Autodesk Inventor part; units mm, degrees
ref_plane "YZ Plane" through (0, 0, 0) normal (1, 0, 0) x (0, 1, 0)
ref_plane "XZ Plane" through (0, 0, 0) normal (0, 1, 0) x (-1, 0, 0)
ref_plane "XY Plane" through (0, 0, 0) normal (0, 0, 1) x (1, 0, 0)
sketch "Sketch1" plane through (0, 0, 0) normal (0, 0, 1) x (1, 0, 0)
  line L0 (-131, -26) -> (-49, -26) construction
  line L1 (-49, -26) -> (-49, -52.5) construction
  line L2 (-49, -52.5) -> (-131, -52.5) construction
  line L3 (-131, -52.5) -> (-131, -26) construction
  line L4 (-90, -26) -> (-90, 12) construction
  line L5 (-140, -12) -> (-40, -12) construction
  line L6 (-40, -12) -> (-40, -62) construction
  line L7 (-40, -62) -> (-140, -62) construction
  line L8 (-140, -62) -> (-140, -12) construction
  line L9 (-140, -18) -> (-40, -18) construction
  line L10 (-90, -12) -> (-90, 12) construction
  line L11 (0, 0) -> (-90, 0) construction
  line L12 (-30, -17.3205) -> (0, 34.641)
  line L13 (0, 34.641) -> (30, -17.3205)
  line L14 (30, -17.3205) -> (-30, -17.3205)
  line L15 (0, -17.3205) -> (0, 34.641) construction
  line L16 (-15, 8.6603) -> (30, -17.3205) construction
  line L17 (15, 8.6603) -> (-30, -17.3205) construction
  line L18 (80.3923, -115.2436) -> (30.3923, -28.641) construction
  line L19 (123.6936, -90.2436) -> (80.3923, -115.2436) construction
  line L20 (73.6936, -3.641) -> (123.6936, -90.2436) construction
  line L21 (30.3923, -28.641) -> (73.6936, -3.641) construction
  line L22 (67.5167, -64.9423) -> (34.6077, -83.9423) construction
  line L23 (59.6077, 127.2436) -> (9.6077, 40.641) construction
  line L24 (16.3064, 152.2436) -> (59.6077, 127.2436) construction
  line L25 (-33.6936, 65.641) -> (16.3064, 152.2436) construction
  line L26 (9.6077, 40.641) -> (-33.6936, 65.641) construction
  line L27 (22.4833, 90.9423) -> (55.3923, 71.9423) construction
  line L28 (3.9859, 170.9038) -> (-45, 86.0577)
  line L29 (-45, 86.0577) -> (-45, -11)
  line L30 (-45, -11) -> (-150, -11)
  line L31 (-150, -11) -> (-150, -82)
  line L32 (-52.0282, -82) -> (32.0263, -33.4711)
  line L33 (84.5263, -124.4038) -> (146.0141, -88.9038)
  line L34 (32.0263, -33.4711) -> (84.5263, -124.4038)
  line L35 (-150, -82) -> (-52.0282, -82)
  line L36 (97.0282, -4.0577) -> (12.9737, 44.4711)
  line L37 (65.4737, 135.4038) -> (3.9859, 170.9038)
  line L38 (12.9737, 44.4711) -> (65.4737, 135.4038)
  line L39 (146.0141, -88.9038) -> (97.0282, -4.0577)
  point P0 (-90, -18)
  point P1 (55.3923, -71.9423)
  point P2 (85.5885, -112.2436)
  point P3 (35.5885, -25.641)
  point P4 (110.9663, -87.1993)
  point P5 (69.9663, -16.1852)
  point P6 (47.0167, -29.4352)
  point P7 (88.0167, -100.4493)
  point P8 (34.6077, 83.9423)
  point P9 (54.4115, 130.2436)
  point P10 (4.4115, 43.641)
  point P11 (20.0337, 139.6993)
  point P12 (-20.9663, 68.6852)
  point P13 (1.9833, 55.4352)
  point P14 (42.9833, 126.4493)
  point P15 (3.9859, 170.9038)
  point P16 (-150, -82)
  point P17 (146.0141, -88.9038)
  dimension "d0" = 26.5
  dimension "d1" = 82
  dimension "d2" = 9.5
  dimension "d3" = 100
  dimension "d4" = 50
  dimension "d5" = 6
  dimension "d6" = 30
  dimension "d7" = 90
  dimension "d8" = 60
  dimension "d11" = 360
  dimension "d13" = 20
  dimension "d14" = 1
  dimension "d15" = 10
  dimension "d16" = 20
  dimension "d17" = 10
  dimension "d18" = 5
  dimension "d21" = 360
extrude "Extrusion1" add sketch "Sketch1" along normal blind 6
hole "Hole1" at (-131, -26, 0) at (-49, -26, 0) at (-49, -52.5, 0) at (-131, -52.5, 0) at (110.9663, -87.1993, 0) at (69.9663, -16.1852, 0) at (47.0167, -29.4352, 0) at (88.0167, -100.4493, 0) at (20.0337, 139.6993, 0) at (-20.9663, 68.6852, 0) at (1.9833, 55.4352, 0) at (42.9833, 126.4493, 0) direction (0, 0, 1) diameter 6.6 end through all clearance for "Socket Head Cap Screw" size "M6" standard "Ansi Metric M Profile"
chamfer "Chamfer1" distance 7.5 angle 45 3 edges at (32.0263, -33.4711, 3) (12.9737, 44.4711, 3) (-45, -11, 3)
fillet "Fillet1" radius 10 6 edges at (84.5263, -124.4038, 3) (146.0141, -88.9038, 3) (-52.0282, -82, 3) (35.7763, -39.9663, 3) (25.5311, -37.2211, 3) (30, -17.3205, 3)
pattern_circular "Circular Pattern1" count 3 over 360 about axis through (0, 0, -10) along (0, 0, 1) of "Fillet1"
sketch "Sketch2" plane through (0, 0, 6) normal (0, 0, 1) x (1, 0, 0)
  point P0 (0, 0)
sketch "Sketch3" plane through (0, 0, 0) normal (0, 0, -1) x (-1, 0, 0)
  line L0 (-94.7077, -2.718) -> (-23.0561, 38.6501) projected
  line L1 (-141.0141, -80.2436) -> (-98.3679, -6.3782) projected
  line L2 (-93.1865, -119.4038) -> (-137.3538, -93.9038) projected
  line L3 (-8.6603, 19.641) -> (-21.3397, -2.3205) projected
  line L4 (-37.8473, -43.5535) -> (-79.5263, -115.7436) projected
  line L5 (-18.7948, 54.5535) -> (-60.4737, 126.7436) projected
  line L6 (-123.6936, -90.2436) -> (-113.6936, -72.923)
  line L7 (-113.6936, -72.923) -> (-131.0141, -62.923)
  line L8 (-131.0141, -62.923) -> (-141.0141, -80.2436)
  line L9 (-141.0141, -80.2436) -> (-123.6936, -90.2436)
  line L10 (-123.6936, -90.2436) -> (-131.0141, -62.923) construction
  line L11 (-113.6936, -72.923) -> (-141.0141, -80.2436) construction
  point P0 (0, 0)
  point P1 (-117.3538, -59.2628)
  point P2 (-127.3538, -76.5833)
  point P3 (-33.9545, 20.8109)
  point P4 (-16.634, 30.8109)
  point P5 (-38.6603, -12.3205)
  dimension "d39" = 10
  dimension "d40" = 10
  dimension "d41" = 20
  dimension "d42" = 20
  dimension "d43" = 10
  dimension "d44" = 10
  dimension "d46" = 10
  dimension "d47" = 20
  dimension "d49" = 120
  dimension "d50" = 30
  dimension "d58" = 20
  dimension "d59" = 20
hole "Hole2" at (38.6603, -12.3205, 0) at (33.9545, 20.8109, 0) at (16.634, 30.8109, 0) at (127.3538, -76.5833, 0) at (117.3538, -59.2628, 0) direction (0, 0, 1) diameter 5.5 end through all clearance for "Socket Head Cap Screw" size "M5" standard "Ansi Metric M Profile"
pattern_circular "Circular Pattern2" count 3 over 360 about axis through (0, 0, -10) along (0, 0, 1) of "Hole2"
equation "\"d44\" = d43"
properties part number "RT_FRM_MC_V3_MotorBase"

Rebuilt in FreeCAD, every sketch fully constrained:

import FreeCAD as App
import Part
import Sketcher

V = App.Vector
Q = App.Units.Quantity


def edges_at(feature, points):
    """Names of the edges that pass closest to the given points."""
    edges = feature.Shape.Edges
    near = lambda p: min(range(len(edges)), key=lambda i: edges[i].distToShape(Part.Vertex(*p))[0])
    return sorted({f"Edge{near(p) + 1}" for p in points})

doc = App.newDocument("Part")
params = doc.addObject("Spreadsheet::Sheet", "Params")
for row, (alias, value) in enumerate([
    ("sketch1_width", "60 mm"),
    ("sketch1_width2", "105 mm"),
    ("sketch1_height", "71 mm"),
    ("sketch1_length", "71 mm"),
    ("sketch1_length2", "105 mm"),
    ("pad1_length", "6 mm"),
    ("sketch2_diameter", "6.6 mm"),
    ("hole_diameter", "6.6 mm"),
    ("chamfer_size", "7.5 mm"),
    ("fillet_radius", "10 mm"),
    ("sketch3_diameter", "5.5 mm"),
    ("hole2_diameter", "5.5 mm"),
], start=1):
    params.set(f"A{row}", alias)
    params.set(f"B{row}", "=" + value)
    params.setAlias(f"B{row}", alias)

body = doc.addObject("PartDesign::Body", "Body")

# Sketch on XY plane
sketch1 = body.newObject("Sketcher::SketchObject", "Sketch")
sketch1.AttachmentSupport = (doc.getObject("XY_Plane"), [""])
sketch1.MapMode = "FlatFace"
sketch1.addGeometry([
    Part.LineSegment(V(65, 135, 0), V(4, 171, 0)),  # 0
    Part.LineSegment(V(4, 171, 0), V(-45, 86, 0)),  # 1
    Part.LineSegment(V(-45, 86, 0), V(-45, -11, 0)),  # 2
    Part.LineSegment(V(-45, -11, 0), V(-150, -11, 0)),  # 3
    Part.LineSegment(V(-150, -11, 0), V(-150, -82, 0)),  # 4
    Part.LineSegment(V(-150, -82, 0), V(-52, -82, 0)),  # 5
    Part.LineSegment(V(-52, -82, 0), V(32, -33, 0)),  # 6
    Part.LineSegment(V(32, -33, 0), V(85, -124, 0)),  # 7
    Part.LineSegment(V(85, -124, 0), V(146, -89, 0)),  # 8
    Part.LineSegment(V(146, -89, 0), V(97, -4, 0)),  # 9
    Part.LineSegment(V(97, -4, 0), V(13, 44, 0)),  # 10
    Part.LineSegment(V(13, 44, 0), V(65, 135, 0)),  # 11
    Part.LineSegment(V(30, -17, 0), V(-30, -17, 0)),  # 12
    Part.LineSegment(V(-30, -17, 0), V(0, 35, 0)),  # 13
    Part.LineSegment(V(0, 35, 0), V(30, -17, 0)),  # 14
], False)
sketch1.addConstraint([
    Sketcher.Constraint("Coincident", 0, 2, 1, 1),
    Sketcher.Constraint("Coincident", 1, 2, 2, 1),
    Sketcher.Constraint("Coincident", 2, 2, 3, 1),
    Sketcher.Constraint("Coincident", 3, 2, 4, 1),
    Sketcher.Constraint("Coincident", 4, 2, 5, 1),
    Sketcher.Constraint("Coincident", 5, 2, 6, 1),
    Sketcher.Constraint("Coincident", 6, 2, 7, 1),
    Sketcher.Constraint("Coincident", 7, 2, 8, 1),
    Sketcher.Constraint("Coincident", 8, 2, 9, 1),
    Sketcher.Constraint("Coincident", 9, 2, 10, 1),
    Sketcher.Constraint("Coincident", 10, 2, 11, 1),
    Sketcher.Constraint("Coincident", 11, 2, 0, 1),
    Sketcher.Constraint("Coincident", 12, 2, 13, 1),
    Sketcher.Constraint("Coincident", 13, 2, 14, 1),
    Sketcher.Constraint("Coincident", 14, 2, 12, 1),
    Sketcher.Constraint("Vertical", 2),
    Sketcher.Constraint("Horizontal", 3),
    Sketcher.Constraint("Vertical", 4),
    Sketcher.Constraint("Horizontal", 5),
    Sketcher.Constraint("Horizontal", 12),
    Sketcher.Constraint("PointOnObject", 13, 2, -2),
    Sketcher.Constraint("Perpendicular", 0, 1),
    Sketcher.Constraint("Perpendicular", 6, 7),
    Sketcher.Constraint("Perpendicular", 7, 8),
    Sketcher.Constraint("Perpendicular", 8, 9),
    Sketcher.Constraint("Perpendicular", 1, 10),
    Sketcher.Constraint("Perpendicular", 10, 11),
    Sketcher.Constraint("Parallel", 11, 13),
    Sketcher.Constraint("Parallel", 9, 14),
    Sketcher.Constraint("Equal", 0, 8),
    Sketcher.Constraint("Equal", 1, 9),
    Sketcher.Constraint("Equal", 6, 10),
    Sketcher.Constraint("Equal", 7, 11),
    Sketcher.Constraint("Equal", 13, 14),
    Sketcher.Constraint("DistanceX", 12, 2, 12, 1, 60.0),
    Sketcher.Constraint("Angle", 6, Q("30 deg")),
    Sketcher.Constraint("DistanceY", 4, 2, -1, 1, 82.0),
    Sketcher.Constraint("DistanceX", 3, 2, 3, 1, 105.0),
    Sketcher.Constraint("DistanceY", 4, 2, 4, 1, 71.0),
    Sketcher.Constraint("Distance", 0, 71.0),
    Sketcher.Constraint("Distance", 7, 105.0),
    Sketcher.Constraint("DistanceX", 1, 2, -1, 1, 45.0),
    Sketcher.Constraint("DistanceY", 13, 2, 10, 2, 9.83),
    Sketcher.Constraint("DistanceX", 5, 1, 5, 2, 97.9718),
    Sketcher.Constraint("DistanceY", 2, 2, 2, 1, 97.0577),
])
sketch1.setExpression("Constraints[34]", "Params.sketch1_width")
sketch1.setExpression("Constraints[37]", "Params.sketch1_width2")
sketch1.setExpression("Constraints[38]", "Params.sketch1_height")
sketch1.setExpression("Constraints[39]", "Params.sketch1_length")
sketch1.setExpression("Constraints[40]", "Params.sketch1_length2")
pad1 = body.newObject("PartDesign::Pad", "Pad")
pad1.Profile = sketch1
pad1.setExpression("Length", "Params.pad1_length")

# Sketch on XY plane
sketch2 = body.newObject("Sketcher::SketchObject", "Sketch001")
sketch2.AttachmentSupport = (doc.getObject("XY_Plane"), [""])
sketch2.MapMode = "FlatFace"
sketch2.addGeometry([
    Part.Circle(V(-131, -26, 0), V(0, 0, 1), 3.3),  # 0
    Part.Circle(V(-49, -26, 0), V(0, 0, 1), 3.3),  # 1
    Part.Circle(V(-49, -52.5, 0), V(0, 0, 1), 3.3),  # 2
    Part.Circle(V(-131, -52.5, 0), V(0, 0, 1), 3.3),  # 3
    Part.Circle(V(111, -87.2, 0), V(0, 0, 1), 3.3),  # 4
    Part.Circle(V(70, -16.2, 0), V(0, 0, 1), 3.3),  # 5
    Part.Circle(V(47, -29.4, 0), V(0, 0, 1), 3.3),  # 6
    Part.Circle(V(88, -100.4, 0), V(0, 0, 1), 3.3),  # 7
    Part.Circle(V(20, 139.7, 0), V(0, 0, 1), 3.3),  # 8
    Part.Circle(V(-21, 68.7, 0), V(0, 0, 1), 3.3),  # 9
    Part.Circle(V(2, 55.4, 0), V(0, 0, 1), 3.3),  # 10
    Part.Circle(V(43, 126.4, 0), V(0, 0, 1), 3.3),  # 11
], False)
sketch2.addConstraint([
    Sketcher.Constraint("Equal", 0, 1),
    Sketcher.Constraint("Equal", 1, 2),
    Sketcher.Constraint("Equal", 2, 3),
    Sketcher.Constraint("Equal", 3, 4),
    Sketcher.Constraint("Equal", 4, 5),
    Sketcher.Constraint("Equal", 5, 6),
    Sketcher.Constraint("Equal", 6, 7),
    Sketcher.Constraint("Equal", 7, 8),
    Sketcher.Constraint("Equal", 8, 9),
    Sketcher.Constraint("Equal", 9, 10),
    Sketcher.Constraint("Equal", 10, 11),
    Sketcher.Constraint("Horizontal", 0, 3, 1, 3),
    Sketcher.Constraint("Horizontal", 2, 3, 3, 3),
    Sketcher.Constraint("Vertical", 1, 3, 2, 3),
    Sketcher.Constraint("Vertical", 0, 3, 3, 3),
    Sketcher.Constraint("Diameter", 0, 6.6),
    Sketcher.Constraint("DistanceX", 0, 3, -1, 1, 131.0),
    Sketcher.Constraint("DistanceY", 0, 3, -1, 1, 26.0),
    Sketcher.Constraint("DistanceX", 1, 3, -1, 1, 49.0),
    Sketcher.Constraint("DistanceX", 5, 3, 4, 3, 41.0),
    Sketcher.Constraint("DistanceX", 6, 3, 7, 3, 41.0),
    Sketcher.Constraint("DistanceX", 9, 3, 8, 3, 41.0),
    Sketcher.Constraint("DistanceX", 10, 3, 11, 3, 41.0),
    Sketcher.Constraint("DistanceY", 2, 3, -1, 1, 52.5),
    Sketcher.Constraint("DistanceY", 6, 3, 5, 3, 13.25),
    Sketcher.Constraint("DistanceY", 7, 3, 4, 3, 13.25),
    Sketcher.Constraint("DistanceY", 10, 3, 9, 3, 13.25),
    Sketcher.Constraint("DistanceY", 11, 3, 8, 3, 13.25),
    Sketcher.Constraint("DistanceY", 4, 3, 5, 3, 71.014),
    Sketcher.Constraint("DistanceX", 8, 3, 6, 3, 26.983),
    Sketcher.Constraint("DistanceY", 9, 3, 8, 3, 71.014),
    Sketcher.Constraint("DistanceX", 10, 3, 5, 3, 67.983),
    Sketcher.Constraint("DistanceX", -1, 1, 4, 3, 110.9663),
    Sketcher.Constraint("DistanceY", 4, 3, -1, 1, 87.1993),
    Sketcher.Constraint("DistanceX", -1, 1, 6, 3, 47.0167),
    Sketcher.Constraint("DistanceY", -1, 1, 8, 3, 139.6993),
])
sketch2.setExpression("Constraints[15]", "Params.sketch2_diameter")
doc.recompute()
hole = body.newObject("PartDesign::Hole", "Hole")
hole.Profile = sketch2
hole.ThreadType = "None"
hole.setExpression("Diameter", "Params.hole_diameter")
hole.DepthType = "ThroughAll"
hole.Reversed = True
doc.recompute()

chamfer = body.newObject("PartDesign::Chamfer", "Chamfer")
chamfer.Base = (hole, edges_at(hole, [(32.026, -33.471, 3), (12.974, 44.471, 3), (-45, -11, 3)]))
chamfer.setExpression("Size", "Params.chamfer_size")
doc.recompute()

fillet = body.newObject("PartDesign::Fillet", "Fillet")
fillet.Base = (chamfer, edges_at(chamfer, [
    (84.526, -124.404, 3),
    (146.014, -88.904, 3),
    (-52.028, -82, 3),
    (35.776, -39.966, 3),
    (25.531, -37.221, 3),
    (30, -17.32, 3),
]))
fillet.setExpression("Radius", "Params.fillet_radius")
doc.recompute()

polarpattern = body.newObject("PartDesign::PolarPattern", "PolarPattern")
polarpattern.Originals = [fillet]
polarpattern.Axis = (doc.getObject("Z_Axis"), [""])
polarpattern.Angle = 360
polarpattern.Occurrences = 3
body.Tip = polarpattern

# Sketch on XY plane
sketch3 = body.newObject("Sketcher::SketchObject", "Sketch002")
sketch3.AttachmentSupport = (doc.getObject("XY_Plane"), [""])
sketch3.MapMode = "FlatFace"
sketch3.addGeometry([
    Part.Circle(V(38.7, -12.3, 0), V(0, 0, 1), 2.8),  # 0
    Part.Circle(V(34, 20.8, 0), V(0, 0, 1), 2.8),  # 1
    Part.Circle(V(16.6, 30.8, 0), V(0, 0, 1), 2.8),  # 2
    Part.Circle(V(127.4, -76.6, 0), V(0, 0, 1), 2.8),  # 3
    Part.Circle(V(117.4, -59.3, 0), V(0, 0, 1), 2.8),  # 4
], False)
sketch3.addConstraint([
    Sketcher.Constraint("Equal", 0, 1),
    Sketcher.Constraint("Equal", 1, 2),
    Sketcher.Constraint("Equal", 2, 3),
    Sketcher.Constraint("Equal", 3, 4),
    Sketcher.Constraint("Diameter", 0, 5.5),
    Sketcher.Constraint("DistanceY", 1, 3, 2, 3, 10.0),
    Sketcher.Constraint("DistanceX", 4, 3, 3, 3, 10.0),
    Sketcher.Constraint("DistanceY", -1, 1, 1, 3, 20.811),
    Sketcher.Constraint("DistanceX", -1, 1, 2, 3, 16.634),
    Sketcher.Constraint("DistanceX", -1, 1, 0, 3, 38.6603),
    Sketcher.Constraint("DistanceY", 0, 3, -1, 1, 12.3205),
    Sketcher.Constraint("DistanceX", -1, 1, 1, 3, 33.9545),
    Sketcher.Constraint("DistanceX", -1, 1, 3, 3, 127.3538),
    Sketcher.Constraint("DistanceY", 3, 3, -1, 1, 76.5833),
    Sketcher.Constraint("DistanceY", 4, 3, -1, 1, 59.2628),
])
sketch3.setExpression("Constraints[4]", "Params.sketch3_diameter")
doc.recompute()
hole2 = body.newObject("PartDesign::Hole", "Hole001")
hole2.Profile = sketch3
hole2.ThreadType = "None"
hole2.setExpression("Diameter", "Params.hole2_diameter")
hole2.DepthType = "ThroughAll"
hole2.Reversed = True
doc.recompute()

polarpattern2 = body.newObject("PartDesign::PolarPattern", "PolarPattern001")
polarpattern2.Originals = [hole2]
polarpattern2.Axis = (doc.getObject("Z_Axis"), [""])
polarpattern2.Angle = 360
polarpattern2.Occurrences = 3
body.Tip = polarpattern2

doc.recompute()
